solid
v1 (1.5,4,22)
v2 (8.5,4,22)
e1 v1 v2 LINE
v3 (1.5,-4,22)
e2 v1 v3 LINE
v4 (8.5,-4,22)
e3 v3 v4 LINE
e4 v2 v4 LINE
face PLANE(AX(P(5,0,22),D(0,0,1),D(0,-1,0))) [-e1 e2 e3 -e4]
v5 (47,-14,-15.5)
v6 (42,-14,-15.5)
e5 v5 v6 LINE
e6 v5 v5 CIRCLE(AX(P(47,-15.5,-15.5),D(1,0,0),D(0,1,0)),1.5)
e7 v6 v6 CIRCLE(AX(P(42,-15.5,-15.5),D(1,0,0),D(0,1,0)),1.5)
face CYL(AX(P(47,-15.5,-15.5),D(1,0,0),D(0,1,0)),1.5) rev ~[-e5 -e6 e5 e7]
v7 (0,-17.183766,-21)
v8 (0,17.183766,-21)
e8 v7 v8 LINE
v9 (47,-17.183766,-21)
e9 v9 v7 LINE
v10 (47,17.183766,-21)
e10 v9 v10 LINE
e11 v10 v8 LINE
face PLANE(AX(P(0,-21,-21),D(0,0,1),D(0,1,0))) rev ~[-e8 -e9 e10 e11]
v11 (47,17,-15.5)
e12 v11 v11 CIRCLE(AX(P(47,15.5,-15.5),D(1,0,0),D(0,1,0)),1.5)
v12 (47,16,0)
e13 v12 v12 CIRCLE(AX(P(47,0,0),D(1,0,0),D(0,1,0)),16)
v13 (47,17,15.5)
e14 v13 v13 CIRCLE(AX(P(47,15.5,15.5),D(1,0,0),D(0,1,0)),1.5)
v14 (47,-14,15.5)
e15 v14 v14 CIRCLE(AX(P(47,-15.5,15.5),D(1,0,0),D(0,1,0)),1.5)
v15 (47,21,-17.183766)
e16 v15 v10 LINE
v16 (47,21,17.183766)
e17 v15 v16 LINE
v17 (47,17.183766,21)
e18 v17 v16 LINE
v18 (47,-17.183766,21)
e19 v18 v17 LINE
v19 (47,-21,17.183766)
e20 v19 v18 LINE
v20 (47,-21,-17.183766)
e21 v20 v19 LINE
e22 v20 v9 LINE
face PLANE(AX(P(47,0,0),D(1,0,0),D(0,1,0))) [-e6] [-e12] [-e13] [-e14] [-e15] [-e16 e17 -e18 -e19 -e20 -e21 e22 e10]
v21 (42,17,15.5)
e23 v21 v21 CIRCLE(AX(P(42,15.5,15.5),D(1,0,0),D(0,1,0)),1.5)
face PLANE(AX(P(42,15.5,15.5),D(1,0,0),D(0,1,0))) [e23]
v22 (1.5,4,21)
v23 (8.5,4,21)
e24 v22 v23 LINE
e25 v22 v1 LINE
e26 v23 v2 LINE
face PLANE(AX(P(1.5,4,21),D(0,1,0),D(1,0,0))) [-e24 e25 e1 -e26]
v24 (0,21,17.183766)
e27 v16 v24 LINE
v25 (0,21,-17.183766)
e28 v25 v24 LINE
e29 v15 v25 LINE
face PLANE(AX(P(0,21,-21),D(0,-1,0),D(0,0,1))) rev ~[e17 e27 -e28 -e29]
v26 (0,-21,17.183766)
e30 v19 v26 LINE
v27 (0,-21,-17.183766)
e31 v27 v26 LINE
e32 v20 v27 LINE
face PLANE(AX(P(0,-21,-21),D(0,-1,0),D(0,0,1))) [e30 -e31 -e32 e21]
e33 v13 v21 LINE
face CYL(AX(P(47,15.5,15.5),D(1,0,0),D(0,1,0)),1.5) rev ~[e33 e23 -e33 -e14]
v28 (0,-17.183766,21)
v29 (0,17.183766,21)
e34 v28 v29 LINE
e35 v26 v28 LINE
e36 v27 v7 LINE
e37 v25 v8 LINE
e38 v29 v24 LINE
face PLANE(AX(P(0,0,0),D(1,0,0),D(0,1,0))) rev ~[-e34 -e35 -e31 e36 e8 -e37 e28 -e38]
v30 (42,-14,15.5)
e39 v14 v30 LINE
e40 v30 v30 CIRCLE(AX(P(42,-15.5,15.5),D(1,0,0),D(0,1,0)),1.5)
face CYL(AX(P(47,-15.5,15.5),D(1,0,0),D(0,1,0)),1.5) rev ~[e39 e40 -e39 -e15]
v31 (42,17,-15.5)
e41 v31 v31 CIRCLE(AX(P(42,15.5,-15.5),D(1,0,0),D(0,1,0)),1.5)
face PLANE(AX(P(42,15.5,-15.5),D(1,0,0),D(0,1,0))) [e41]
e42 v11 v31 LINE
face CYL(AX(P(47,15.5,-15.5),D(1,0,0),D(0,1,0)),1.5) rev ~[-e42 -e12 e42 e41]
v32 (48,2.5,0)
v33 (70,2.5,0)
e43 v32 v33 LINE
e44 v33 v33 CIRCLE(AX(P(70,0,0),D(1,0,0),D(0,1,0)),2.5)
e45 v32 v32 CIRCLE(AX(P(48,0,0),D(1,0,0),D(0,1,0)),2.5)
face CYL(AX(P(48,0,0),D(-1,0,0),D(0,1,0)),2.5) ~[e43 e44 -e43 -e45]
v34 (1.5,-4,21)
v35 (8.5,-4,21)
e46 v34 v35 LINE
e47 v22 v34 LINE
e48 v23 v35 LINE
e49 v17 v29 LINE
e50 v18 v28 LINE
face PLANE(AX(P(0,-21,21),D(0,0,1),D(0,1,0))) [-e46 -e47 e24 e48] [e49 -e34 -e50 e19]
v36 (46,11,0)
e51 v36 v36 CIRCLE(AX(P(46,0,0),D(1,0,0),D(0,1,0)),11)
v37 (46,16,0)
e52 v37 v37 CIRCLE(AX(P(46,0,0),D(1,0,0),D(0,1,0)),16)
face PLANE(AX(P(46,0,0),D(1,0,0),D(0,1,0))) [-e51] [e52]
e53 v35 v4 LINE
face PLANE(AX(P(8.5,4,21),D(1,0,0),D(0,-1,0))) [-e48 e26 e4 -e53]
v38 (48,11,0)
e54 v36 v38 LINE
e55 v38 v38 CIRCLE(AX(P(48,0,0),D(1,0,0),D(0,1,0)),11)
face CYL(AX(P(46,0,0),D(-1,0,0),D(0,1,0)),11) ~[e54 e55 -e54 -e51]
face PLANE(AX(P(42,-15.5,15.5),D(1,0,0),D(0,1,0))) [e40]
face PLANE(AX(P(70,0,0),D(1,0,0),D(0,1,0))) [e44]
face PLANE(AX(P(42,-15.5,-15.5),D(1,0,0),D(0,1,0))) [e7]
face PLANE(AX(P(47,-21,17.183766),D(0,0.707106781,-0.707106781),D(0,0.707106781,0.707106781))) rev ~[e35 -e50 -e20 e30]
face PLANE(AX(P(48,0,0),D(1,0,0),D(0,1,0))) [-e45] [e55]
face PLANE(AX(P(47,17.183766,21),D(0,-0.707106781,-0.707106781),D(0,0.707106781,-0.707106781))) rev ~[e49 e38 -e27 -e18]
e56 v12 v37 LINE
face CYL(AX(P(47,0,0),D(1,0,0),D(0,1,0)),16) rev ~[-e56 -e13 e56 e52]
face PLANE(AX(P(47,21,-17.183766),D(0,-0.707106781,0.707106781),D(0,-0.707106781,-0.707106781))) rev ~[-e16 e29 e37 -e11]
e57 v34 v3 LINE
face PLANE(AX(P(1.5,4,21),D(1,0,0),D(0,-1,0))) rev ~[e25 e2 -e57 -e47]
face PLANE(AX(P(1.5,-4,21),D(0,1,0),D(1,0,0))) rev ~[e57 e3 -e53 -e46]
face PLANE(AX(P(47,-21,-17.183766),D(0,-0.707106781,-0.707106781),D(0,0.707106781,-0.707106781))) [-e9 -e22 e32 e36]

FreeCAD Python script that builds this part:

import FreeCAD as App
import Part
import Sketcher
from FreeCAD import Vector
Q = App.Units.Quantity

doc = App.newDocument("Part")
body = doc.addObject("PartDesign::Body", "Body")

# Sketch on YZ plane
sketch1 = body.newObject("Sketcher::SketchObject", "Sketch")
sketch1.AttachmentSupport = (doc.getObject("YZ_Plane"), [""])
sketch1.MapMode = "FlatFace"
sketch1.addGeometry([
    Part.LineSegment(Vector(-21, 21, 0), Vector(-21, -21, 0)),
    Part.LineSegment(Vector(-21, -21, 0), Vector(21, -21, 0)),
    Part.LineSegment(Vector(21, -21, 0), Vector(21, 21, 0)),
    Part.LineSegment(Vector(21, 21, 0), Vector(-21, 21, 0)),
], False)
sketch1.addConstraint([
    Sketcher.Constraint("Coincident", 0, 2, 1, 1),
    Sketcher.Constraint("Coincident", 1, 2, 2, 1),
    Sketcher.Constraint("Coincident", 2, 2, 3, 1),
    Sketcher.Constraint("Coincident", 3, 2, 0, 1),
    Sketcher.Constraint("Vertical", 0),
    Sketcher.Constraint("Horizontal", 1),
    Sketcher.Constraint("Vertical", 2),
    Sketcher.Constraint("Horizontal", 3),
    Sketcher.Constraint("Symmetric", 0, 2, 2, 2, -1, 1),
    Sketcher.Constraint("Equal", 3, 0),
    Sketcher.Constraint("DistanceX", 1, 1, 1, 2, Q("42 mm")),
])
pad1 = body.newObject("PartDesign::Pad", "Pad")
pad1.Profile = sketch1
pad1.Length = 47

# Sketch on YZ plane
sketch2 = body.newObject("Sketcher::SketchObject", "Sketch001")
sketch2.AttachmentSupport = (doc.getObject("YZ_Plane"), [""])
sketch2.MapMode = "FlatFace"
sketch2.AttachmentOffset = App.Placement(Vector(0, 0, 47), App.Rotation())
sketch2.addGeometry([
    Part.Circle(Vector(15.5, 15.5, 0), Vector(0, 0, 1), 1.5),
    Part.Circle(Vector(-15.5, 15.5, 0), Vector(0, 0, 1), 1.5),
    Part.Circle(Vector(-15.5, -15.5, 0), Vector(0, 0, 1), 1.5),
    Part.Circle(Vector(15.5, -15.5, 0), Vector(0, 0, 1), 1.5),
], False)
sketch2.addConstraint([
    Sketcher.Constraint("Equal", 0, 1),
    Sketcher.Constraint("Equal", 1, 2),
    Sketcher.Constraint("Equal", 2, 3),
    Sketcher.Constraint("Symmetric", 0, 3, 2, 3, -1, 1),
    Sketcher.Constraint("Symmetric", 1, 3, 3, 3, -1, 1),
    Sketcher.Constraint("Symmetric", 0, 3, 1, 3, -2),
    Sketcher.Constraint("Diameter", 0, Q("3 mm")),
    Sketcher.Constraint("DistanceX", 1, 3, 0, 3, Q("31 mm")),
    Sketcher.Constraint("DistanceY", 2, 3, 1, 3, Q("31 mm")),
])
pocket1 = body.newObject("PartDesign::Pocket", "Pocket")
pocket1.Profile = sketch2
pocket1.Length = 5

# Sketch on YZ plane
sketch3 = body.newObject("Sketcher::SketchObject", "Sketch002")
sketch3.AttachmentSupport = (doc.getObject("YZ_Plane"), [""])
sketch3.MapMode = "FlatFace"
sketch3.AttachmentOffset = App.Placement(Vector(0, 0, 47), App.Rotation())
sketch3.addGeometry([
    Part.LineSegment(Vector(-21, 21, 0), Vector(-21, 17.2, 0)),  # 0
    Part.LineSegment(Vector(-21, 17.2, 0), Vector(-17.2, 21, 0)),  # 1
    Part.LineSegment(Vector(-17.2, 21, 0), Vector(-21, 21, 0)),  # 2
    Part.LineSegment(Vector(21, 21, 0), Vector(17.2, 21, 0)),  # 3
    Part.LineSegment(Vector(17.2, 21, 0), Vector(21, 17.2, 0)),  # 4
    Part.LineSegment(Vector(21, 17.2, 0), Vector(21, 21, 0)),  # 5
    Part.LineSegment(Vector(21, -21, 0), Vector(21, -17.2, 0)),  # 6
    Part.LineSegment(Vector(21, -17.2, 0), Vector(17.2, -21, 0)),  # 7
    Part.LineSegment(Vector(17.2, -21, 0), Vector(21, -21, 0)),  # 8
    Part.LineSegment(Vector(-21, -17.2, 0), Vector(-21, -21, 0)),  # 9
    Part.LineSegment(Vector(-21, -21, 0), Vector(-17.2, -21, 0)),  # 10
    Part.LineSegment(Vector(-17.2, -21, 0), Vector(-21, -17.2, 0)),  # 11
], False)
sketch3.addConstraint([
    Sketcher.Constraint("Coincident", 0, 2, 1, 1),
    Sketcher.Constraint("Coincident", 1, 2, 2, 1),
    Sketcher.Constraint("Coincident", 2, 2, 0, 1),
    Sketcher.Constraint("Coincident", 3, 2, 4, 1),
    Sketcher.Constraint("Coincident", 4, 2, 5, 1),
    Sketcher.Constraint("Coincident", 5, 2, 3, 1),
    Sketcher.Constraint("Coincident", 6, 2, 7, 1),
    Sketcher.Constraint("Coincident", 7, 2, 8, 1),
    Sketcher.Constraint("Coincident", 8, 2, 6, 1),
    Sketcher.Constraint("Coincident", 9, 2, 10, 1),
    Sketcher.Constraint("Coincident", 10, 2, 11, 1),
    Sketcher.Constraint("Coincident", 11, 2, 9, 1),
    Sketcher.Constraint("Vertical", 0),
    Sketcher.Constraint("Horizontal", 2),
    Sketcher.Constraint("Horizontal", 3),
    Sketcher.Constraint("Vertical", 5),
    Sketcher.Constraint("Vertical", 6),
    Sketcher.Constraint("Horizontal", 8),
    Sketcher.Constraint("Vertical", 9),
    Sketcher.Constraint("Horizontal", 10),
    Sketcher.Constraint("Symmetric", 0, 2, 6, 2, -1, 1),
    Sketcher.Constraint("Symmetric", 1, 2, 7, 2, -1, 1),
    Sketcher.Constraint("Symmetric", 5, 2, 9, 2, -1, 1),
    Sketcher.Constraint("Symmetric", 1, 2, 3, 2, -2),
    Sketcher.Constraint("Symmetric", 0, 2, 4, 2, -2),
    Sketcher.Constraint("Perpendicular", 1, 4),
    Sketcher.Constraint("Perpendicular", 7, 11),
    Sketcher.Constraint("Horizontal", 6, 2, 11, 2),
    Sketcher.Constraint("DistanceX", 0, 2, -1, 1, Q("21 mm")),
    Sketcher.Constraint("DistanceY", -1, 1, 1, 2, Q("21 mm")),
    Sketcher.Constraint("Distance", 1, Q("5.39697 mm")),
])
pocket2 = body.newObject("PartDesign::Pocket", "Pocket001")
pocket2.Profile = sketch3
pocket2.Length = 47

# Sketch on YZ plane
sketch4 = body.newObject("Sketcher::SketchObject", "Sketch003")
sketch4.AttachmentSupport = (doc.getObject("YZ_Plane"), [""])
sketch4.MapMode = "FlatFace"
sketch4.AttachmentOffset = App.Placement(Vector(0, 0, 47), App.Rotation())
sketch4.addGeometry(Part.Circle(Vector(0, 0, 0), Vector(0, 0, 1), 16), False)
sketch4.addConstraint([
    Sketcher.Constraint("Coincident", 0, 3, -1, 1),
    Sketcher.Constraint("Diameter", 0, Q("32 mm")),
])
pocket3 = body.newObject("PartDesign::Pocket", "Pocket002")
pocket3.Profile = sketch4
pocket3.Length = 1

# Sketch on YZ plane
sketch5 = body.newObject("Sketcher::SketchObject", "Sketch004")
sketch5.AttachmentSupport = (doc.getObject("YZ_Plane"), [""])
sketch5.MapMode = "FlatFace"
sketch5.AttachmentOffset = App.Placement(Vector(0, 0, 46), App.Rotation())
sketch5.addGeometry(Part.Circle(Vector(0, 0, 0), Vector(0, 0, 1), 11), False)
sketch5.addConstraint([
    Sketcher.Constraint("Coincident", 0, 3, -1, 1),
    Sketcher.Constraint("Diameter", 0, Q("22 mm")),
])
pad2 = body.newObject("PartDesign::Pad", "Pad001")
pad2.Profile = sketch5
pad2.Length = 2

# Sketch on YZ plane
sketch6 = body.newObject("Sketcher::SketchObject", "Sketch005")
sketch6.AttachmentSupport = (doc.getObject("YZ_Plane"), [""])
sketch6.MapMode = "FlatFace"
sketch6.AttachmentOffset = App.Placement(Vector(0, 0, 48), App.Rotation())
sketch6.addGeometry(Part.Circle(Vector(0, 0, 0), Vector(0, 0, 1), 2.5), False)
sketch6.addConstraint([
    Sketcher.Constraint("Coincident", 0, 3, -1, 1),
    Sketcher.Constraint("Diameter", 0, Q("5 mm")),
])
pad3 = body.newObject("PartDesign::Pad", "Pad002")
pad3.Profile = sketch6
pad3.Length = 22

# Sketch on XY plane
sketch7 = body.newObject("Sketcher::SketchObject", "Sketch006")
sketch7.AttachmentSupport = (doc.getObject("XY_Plane"), [""])
sketch7.MapMode = "FlatFace"
sketch7.AttachmentOffset = App.Placement(Vector(0, 0, 21), App.Rotation())
sketch7.addGeometry([
    Part.LineSegment(Vector(8, 4, 0), Vector(2, 4, 0)),
    Part.LineSegment(Vector(2, 4, 0), Vector(2, -4, 0)),
    Part.LineSegment(Vector(2, -4, 0), Vector(8, -4, 0)),
    Part.LineSegment(Vector(8, -4, 0), Vector(8, 4, 0)),
], False)
sketch7.addConstraint([
    Sketcher.Constraint("Coincident", 0, 2, 1, 1),
    Sketcher.Constraint("Coincident", 1, 2, 2, 1),
    Sketcher.Constraint("Coincident", 2, 2, 3, 1),
    Sketcher.Constraint("Coincident", 3, 2, 0, 1),
    Sketcher.Constraint("Horizontal", 0),
    Sketcher.Constraint("Vertical", 1),
    Sketcher.Constraint("Horizontal", 2),
    Sketcher.Constraint("Vertical", 3),
    Sketcher.Constraint("DistanceX", 0, 2, 0, 1, Q("7 mm")),
    Sketcher.Constraint("DistanceY", 1, 2, 1, 1, Q("8 mm")),
    Sketcher.Constraint("DistanceY", -1, 1, 0, 2, Q("4 mm")),
    Sketcher.Constraint("DistanceX", -1, 1, 0, 2, Q("1.5 mm")),
])
pad4 = body.newObject("PartDesign::Pad", "Pad003")
pad4.Profile = sketch7
pad4.Length = 1

doc.recompute()
